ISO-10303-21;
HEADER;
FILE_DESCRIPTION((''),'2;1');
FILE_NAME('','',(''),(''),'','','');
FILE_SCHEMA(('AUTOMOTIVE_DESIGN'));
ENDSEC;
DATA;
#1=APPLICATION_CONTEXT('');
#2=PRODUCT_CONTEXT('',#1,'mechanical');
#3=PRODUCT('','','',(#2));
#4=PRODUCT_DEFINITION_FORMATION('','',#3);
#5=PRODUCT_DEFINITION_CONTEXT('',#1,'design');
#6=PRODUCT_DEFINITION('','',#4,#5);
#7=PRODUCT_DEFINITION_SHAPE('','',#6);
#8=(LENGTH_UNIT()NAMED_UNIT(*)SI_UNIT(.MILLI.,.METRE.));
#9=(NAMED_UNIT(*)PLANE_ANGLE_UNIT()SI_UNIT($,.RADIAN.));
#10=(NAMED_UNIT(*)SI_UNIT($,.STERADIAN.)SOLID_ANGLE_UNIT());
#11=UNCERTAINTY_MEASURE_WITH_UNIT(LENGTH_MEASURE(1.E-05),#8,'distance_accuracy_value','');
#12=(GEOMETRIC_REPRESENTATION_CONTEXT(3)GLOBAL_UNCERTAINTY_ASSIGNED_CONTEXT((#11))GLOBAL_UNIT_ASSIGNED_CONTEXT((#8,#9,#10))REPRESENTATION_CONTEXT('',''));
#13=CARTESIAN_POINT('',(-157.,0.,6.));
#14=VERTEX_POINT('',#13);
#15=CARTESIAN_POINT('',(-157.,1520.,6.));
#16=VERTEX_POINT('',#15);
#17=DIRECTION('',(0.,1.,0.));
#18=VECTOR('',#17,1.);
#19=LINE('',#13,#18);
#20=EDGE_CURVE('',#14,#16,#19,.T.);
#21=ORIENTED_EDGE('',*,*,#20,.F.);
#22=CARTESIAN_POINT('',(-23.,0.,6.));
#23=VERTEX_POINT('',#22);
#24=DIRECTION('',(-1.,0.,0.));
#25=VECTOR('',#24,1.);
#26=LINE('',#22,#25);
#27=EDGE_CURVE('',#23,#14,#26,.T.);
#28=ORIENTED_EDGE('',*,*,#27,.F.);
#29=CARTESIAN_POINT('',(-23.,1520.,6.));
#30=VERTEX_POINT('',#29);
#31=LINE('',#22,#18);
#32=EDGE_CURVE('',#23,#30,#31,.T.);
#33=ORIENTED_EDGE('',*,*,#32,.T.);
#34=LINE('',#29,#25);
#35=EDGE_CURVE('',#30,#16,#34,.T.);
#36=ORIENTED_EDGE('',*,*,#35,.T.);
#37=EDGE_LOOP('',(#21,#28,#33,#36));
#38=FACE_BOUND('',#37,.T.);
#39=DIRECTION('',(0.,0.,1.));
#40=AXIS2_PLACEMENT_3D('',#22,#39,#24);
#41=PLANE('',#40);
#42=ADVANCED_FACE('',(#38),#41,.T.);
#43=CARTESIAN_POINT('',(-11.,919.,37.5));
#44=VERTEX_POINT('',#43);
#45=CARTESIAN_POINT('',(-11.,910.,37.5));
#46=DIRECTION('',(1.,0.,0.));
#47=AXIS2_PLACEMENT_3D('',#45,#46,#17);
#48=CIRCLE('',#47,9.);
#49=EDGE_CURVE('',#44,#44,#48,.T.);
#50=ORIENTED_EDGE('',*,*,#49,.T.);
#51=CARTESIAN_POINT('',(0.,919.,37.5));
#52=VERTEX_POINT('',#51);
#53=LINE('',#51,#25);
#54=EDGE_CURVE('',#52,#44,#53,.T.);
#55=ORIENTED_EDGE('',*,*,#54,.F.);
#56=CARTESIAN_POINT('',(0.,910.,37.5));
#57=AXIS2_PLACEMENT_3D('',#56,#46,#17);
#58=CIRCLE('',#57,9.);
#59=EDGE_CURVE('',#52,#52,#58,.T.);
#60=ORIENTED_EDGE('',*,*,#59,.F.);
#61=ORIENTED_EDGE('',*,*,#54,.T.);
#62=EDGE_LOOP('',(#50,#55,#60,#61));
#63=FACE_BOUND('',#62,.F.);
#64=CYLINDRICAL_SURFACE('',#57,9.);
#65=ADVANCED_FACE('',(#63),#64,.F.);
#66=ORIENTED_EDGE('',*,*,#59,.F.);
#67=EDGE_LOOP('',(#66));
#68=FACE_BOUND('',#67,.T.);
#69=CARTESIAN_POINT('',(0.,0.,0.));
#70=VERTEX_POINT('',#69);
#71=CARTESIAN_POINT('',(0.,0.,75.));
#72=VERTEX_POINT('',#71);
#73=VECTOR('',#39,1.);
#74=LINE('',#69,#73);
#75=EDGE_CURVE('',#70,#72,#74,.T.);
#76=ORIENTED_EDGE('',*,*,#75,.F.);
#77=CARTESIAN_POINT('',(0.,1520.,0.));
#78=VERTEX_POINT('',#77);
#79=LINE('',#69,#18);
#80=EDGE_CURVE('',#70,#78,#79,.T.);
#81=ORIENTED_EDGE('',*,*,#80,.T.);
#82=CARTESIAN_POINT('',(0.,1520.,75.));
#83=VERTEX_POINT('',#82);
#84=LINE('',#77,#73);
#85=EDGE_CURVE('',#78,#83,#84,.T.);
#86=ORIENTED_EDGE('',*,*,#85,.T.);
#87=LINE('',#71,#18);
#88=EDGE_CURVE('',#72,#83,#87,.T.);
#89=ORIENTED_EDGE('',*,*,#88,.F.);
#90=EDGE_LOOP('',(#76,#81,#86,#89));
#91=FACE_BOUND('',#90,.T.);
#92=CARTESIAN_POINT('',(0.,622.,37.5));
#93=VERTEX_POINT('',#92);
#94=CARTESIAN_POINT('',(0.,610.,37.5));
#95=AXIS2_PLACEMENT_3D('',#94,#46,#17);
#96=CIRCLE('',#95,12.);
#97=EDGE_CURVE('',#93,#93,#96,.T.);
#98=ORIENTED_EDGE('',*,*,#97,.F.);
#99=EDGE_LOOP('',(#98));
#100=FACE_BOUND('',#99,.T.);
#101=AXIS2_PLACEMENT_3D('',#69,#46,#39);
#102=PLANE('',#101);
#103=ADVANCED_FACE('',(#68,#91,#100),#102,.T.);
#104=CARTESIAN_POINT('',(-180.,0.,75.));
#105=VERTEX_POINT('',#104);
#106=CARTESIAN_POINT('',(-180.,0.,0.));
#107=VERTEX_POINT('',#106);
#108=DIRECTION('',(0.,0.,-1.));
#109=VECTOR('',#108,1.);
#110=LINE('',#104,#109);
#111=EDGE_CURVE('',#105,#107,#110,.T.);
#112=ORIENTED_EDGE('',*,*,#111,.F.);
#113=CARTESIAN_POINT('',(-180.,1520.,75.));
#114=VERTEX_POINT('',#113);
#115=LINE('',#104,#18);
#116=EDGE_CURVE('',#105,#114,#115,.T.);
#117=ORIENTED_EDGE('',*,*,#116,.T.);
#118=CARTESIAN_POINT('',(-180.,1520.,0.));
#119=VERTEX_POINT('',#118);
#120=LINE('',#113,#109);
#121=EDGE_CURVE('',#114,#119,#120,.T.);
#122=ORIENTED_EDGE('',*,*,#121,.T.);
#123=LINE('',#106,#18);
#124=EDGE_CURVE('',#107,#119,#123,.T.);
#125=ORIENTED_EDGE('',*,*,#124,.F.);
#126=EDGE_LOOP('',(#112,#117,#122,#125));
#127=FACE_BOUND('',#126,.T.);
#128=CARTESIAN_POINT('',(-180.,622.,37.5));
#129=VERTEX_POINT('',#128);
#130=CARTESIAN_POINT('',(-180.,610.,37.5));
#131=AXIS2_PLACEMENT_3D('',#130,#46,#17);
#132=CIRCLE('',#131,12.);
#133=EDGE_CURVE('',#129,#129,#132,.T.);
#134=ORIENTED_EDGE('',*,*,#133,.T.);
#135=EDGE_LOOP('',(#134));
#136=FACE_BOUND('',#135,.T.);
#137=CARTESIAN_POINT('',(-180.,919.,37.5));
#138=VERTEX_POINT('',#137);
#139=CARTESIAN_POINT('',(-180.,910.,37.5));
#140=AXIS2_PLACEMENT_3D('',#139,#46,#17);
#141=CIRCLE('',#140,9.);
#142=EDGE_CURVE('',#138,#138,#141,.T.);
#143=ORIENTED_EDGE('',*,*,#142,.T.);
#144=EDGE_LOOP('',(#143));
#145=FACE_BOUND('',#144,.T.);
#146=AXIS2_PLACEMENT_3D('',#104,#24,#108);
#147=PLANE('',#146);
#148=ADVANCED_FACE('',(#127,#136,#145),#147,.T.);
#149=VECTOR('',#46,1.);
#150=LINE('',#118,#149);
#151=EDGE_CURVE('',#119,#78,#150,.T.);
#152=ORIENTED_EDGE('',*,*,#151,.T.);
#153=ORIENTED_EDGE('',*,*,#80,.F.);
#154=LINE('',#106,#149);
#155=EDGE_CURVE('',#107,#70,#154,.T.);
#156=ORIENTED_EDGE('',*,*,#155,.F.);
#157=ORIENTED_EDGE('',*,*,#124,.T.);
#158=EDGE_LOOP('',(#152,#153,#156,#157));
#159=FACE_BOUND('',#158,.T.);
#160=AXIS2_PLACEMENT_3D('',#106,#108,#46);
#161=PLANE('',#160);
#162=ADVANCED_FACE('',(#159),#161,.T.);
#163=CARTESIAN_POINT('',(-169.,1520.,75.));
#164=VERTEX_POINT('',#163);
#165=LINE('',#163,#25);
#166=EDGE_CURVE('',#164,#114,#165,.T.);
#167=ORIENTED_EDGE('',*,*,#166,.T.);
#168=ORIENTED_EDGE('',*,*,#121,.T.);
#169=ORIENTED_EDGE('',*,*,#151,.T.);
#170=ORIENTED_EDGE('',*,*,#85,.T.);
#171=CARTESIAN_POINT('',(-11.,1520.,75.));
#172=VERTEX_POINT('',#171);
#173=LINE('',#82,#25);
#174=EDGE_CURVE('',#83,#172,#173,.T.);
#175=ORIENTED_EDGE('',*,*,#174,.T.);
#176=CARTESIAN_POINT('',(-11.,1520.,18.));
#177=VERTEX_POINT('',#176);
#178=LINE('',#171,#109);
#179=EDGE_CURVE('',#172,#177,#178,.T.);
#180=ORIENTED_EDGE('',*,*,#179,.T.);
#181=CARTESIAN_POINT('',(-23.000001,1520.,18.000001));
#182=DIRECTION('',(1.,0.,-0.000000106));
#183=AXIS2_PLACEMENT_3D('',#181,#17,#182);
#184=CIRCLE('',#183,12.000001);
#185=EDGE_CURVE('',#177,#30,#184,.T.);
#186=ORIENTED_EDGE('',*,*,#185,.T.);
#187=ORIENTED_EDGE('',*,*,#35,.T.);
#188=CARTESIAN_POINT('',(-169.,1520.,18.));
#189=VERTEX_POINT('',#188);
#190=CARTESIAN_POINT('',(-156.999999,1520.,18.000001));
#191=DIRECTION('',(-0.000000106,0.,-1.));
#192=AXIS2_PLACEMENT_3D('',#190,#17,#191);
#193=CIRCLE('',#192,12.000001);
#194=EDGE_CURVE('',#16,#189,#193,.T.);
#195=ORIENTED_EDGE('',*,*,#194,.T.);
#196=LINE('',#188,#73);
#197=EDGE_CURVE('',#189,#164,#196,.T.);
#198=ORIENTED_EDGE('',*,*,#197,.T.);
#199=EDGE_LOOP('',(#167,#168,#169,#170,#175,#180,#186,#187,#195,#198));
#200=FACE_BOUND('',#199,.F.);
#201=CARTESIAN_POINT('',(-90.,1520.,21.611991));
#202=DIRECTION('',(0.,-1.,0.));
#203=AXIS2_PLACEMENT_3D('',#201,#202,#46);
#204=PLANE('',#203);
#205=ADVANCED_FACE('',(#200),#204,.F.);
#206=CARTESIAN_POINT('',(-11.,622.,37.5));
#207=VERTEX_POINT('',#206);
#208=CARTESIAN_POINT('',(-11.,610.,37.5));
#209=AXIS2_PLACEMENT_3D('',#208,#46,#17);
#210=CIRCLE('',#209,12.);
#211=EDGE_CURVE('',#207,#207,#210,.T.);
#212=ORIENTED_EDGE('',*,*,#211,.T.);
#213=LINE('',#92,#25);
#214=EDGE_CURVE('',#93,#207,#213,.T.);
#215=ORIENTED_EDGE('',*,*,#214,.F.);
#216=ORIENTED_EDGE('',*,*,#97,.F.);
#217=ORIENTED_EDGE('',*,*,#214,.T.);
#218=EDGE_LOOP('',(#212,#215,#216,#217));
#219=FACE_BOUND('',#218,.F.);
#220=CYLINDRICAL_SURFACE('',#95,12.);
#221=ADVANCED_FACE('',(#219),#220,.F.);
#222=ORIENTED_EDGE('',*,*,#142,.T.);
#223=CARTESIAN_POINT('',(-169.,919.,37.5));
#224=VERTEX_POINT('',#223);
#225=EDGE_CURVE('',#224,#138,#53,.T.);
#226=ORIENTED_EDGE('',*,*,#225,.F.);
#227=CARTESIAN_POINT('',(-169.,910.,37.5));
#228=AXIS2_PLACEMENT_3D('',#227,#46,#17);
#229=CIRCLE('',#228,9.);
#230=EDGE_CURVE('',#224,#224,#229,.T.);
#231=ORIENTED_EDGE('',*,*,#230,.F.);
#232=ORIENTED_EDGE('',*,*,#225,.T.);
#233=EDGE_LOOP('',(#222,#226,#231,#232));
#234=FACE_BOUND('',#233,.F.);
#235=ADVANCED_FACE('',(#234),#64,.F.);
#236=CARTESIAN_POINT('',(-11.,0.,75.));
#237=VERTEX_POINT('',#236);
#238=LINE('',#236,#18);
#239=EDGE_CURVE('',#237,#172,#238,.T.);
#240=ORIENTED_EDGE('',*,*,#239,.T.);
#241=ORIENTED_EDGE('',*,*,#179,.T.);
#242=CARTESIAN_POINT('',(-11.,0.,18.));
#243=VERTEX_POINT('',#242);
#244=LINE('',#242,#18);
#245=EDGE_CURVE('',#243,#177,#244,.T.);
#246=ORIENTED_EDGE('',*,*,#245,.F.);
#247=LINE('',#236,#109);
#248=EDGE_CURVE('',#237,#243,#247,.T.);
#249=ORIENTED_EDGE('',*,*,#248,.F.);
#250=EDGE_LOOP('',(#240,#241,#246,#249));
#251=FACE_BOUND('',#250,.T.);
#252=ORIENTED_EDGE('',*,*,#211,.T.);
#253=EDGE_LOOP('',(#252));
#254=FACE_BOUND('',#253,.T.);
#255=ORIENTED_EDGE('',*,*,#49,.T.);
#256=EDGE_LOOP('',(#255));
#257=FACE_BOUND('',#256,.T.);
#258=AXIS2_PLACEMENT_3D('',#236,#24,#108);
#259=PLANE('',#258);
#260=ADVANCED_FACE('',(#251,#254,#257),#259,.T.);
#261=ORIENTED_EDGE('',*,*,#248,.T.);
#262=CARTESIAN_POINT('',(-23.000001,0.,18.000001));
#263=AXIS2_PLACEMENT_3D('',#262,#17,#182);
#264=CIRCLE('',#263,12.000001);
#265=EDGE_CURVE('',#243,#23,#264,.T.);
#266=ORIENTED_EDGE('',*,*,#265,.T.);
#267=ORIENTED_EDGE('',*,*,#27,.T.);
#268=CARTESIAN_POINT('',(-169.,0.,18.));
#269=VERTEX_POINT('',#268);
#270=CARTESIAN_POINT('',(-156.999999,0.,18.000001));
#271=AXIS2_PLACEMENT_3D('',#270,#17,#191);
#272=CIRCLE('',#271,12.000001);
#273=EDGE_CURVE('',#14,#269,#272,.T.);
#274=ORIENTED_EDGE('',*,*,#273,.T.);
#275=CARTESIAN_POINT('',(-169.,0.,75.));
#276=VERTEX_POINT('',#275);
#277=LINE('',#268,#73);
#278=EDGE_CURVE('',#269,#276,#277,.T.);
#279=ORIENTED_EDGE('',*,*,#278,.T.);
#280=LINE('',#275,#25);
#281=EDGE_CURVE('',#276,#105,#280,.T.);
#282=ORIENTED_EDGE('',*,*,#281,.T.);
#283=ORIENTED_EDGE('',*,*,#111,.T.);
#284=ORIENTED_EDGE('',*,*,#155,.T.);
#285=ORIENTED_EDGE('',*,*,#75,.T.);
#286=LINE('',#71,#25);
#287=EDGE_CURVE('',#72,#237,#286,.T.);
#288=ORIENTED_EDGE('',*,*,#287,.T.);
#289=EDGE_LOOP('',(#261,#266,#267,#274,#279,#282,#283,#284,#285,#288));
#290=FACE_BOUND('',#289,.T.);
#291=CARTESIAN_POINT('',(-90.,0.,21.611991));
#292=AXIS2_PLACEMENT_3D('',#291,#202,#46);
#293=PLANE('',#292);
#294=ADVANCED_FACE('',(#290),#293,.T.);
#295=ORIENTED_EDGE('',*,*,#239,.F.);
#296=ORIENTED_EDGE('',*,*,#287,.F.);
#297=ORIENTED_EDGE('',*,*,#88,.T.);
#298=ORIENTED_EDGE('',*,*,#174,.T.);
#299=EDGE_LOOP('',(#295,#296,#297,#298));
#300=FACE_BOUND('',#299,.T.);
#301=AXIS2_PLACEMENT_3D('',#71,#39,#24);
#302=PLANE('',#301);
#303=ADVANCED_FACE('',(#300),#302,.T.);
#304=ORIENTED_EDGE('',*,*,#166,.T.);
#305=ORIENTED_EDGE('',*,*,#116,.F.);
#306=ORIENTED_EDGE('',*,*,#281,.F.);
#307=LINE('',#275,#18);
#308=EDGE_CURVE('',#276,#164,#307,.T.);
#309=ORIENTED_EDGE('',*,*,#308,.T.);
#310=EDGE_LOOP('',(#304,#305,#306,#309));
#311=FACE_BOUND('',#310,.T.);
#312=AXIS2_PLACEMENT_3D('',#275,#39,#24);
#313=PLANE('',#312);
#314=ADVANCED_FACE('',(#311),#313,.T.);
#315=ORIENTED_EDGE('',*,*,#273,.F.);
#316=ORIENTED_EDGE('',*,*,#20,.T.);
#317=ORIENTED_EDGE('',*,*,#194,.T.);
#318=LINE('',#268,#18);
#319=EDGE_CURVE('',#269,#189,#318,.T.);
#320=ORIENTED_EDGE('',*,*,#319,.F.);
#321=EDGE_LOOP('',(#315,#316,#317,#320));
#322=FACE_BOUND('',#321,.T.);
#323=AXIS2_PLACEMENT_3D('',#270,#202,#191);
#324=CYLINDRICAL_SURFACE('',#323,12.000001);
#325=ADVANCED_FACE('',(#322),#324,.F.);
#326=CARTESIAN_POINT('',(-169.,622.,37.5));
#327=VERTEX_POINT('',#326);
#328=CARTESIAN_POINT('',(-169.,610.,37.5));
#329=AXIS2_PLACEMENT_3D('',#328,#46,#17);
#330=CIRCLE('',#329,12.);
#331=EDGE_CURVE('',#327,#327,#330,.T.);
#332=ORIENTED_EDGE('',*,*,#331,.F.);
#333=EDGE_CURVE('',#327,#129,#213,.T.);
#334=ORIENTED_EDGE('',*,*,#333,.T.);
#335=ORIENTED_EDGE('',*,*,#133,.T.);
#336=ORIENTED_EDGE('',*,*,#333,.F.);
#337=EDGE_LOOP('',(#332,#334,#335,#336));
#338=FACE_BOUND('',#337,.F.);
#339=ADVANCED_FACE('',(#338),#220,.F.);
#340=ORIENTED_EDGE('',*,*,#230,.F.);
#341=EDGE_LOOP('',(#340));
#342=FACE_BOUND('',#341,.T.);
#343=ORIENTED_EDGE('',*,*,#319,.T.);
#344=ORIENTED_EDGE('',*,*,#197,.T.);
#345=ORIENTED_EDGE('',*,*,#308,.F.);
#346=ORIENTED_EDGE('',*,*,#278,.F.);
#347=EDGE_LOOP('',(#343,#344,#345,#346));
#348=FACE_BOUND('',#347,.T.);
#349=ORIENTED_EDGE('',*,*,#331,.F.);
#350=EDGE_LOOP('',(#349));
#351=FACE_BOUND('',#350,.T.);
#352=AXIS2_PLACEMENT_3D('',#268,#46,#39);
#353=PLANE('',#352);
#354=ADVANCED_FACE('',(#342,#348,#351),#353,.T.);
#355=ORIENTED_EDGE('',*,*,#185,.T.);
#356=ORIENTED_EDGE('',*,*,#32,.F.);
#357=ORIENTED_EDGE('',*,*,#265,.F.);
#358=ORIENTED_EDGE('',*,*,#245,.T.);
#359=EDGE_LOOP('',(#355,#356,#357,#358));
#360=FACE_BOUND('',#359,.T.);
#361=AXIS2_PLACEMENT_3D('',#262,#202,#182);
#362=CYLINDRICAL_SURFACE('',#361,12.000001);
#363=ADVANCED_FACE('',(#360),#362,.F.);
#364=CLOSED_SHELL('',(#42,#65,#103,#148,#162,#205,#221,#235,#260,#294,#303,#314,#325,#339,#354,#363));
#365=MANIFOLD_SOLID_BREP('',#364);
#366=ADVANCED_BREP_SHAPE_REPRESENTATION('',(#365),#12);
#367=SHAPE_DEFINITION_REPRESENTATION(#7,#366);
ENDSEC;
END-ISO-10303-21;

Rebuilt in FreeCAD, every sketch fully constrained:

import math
import FreeCAD as App
import Part
import Sketcher

V = App.Vector
Q = App.Units.Quantity

doc = App.newDocument("Part")
body = doc.addObject("PartDesign::Body", "Body")

# Sketch on XZ plane
sketch1 = body.newObject("Sketcher::SketchObject", "Sketch")
sketch1.AttachmentSupport = (doc.getObject("XZ_Plane"), [""])
sketch1.MapMode = "FlatFace"
sketch1.addGeometry(Part.LineSegment(V(-180, 0, 0), V(0, 0, 0)), False)
sketch1.addGeometry(Part.LineSegment(V(0, 0, 0), V(0, 75, 0)), False)
sketch1.addGeometry(Part.LineSegment(V(0, 75, 0), V(-11, 75, 0)), False)
sketch1.addGeometry(Part.LineSegment(V(-11, 75, 0), V(-11, 18, 0)), False)
sketch1.addGeometry(Part.ArcOfCircle(Part.Circle(V(-23.000001, 18.000001, 0), V(0, 0, 1), 12.000001), math.radians(-89.999994), math.radians(-0.000006)), False)
sketch1.addGeometry(Part.LineSegment(V(-23, 6, 0), V(-157, 6, 0)), False)
sketch1.addGeometry(Part.ArcOfCircle(Part.Circle(V(-156.999999, 18.000001, 0), V(0, 0, 1), 12.000001), math.radians(-179.999994), math.radians(-90.000006)), False)
sketch1.addGeometry(Part.LineSegment(V(-169, 18, 0), V(-169, 75, 0)), False)
sketch1.addGeometry(Part.LineSegment(V(-169, 75, 0), V(-180, 75, 0)), False)
sketch1.addGeometry(Part.LineSegment(V(-180, 75, 0), V(-180, 0, 0)), False)
sketch1.addConstraint(Sketcher.Constraint("Coincident", 0, 2, 1, 1))
sketch1.addConstraint(Sketcher.Constraint("Coincident", 1, 2, 2, 1))
sketch1.addConstraint(Sketcher.Constraint("Coincident", 2, 2, 3, 1))
sketch1.addConstraint(Sketcher.Constraint("Tangent", 3, 2, 4, 2))
sketch1.addConstraint(Sketcher.Constraint("Tangent", 4, 1, 5, 1))
sketch1.addConstraint(Sketcher.Constraint("Tangent", 5, 2, 6, 2))
sketch1.addConstraint(Sketcher.Constraint("Tangent", 6, 1, 7, 1))
sketch1.addConstraint(Sketcher.Constraint("Coincident", 7, 2, 8, 1))
sketch1.addConstraint(Sketcher.Constraint("Coincident", 8, 2, 9, 1))
sketch1.addConstraint(Sketcher.Constraint("Coincident", 9, 2, 0, 1))
sketch1.addConstraint(Sketcher.Constraint("Horizontal", 0))
sketch1.addConstraint(Sketcher.Constraint("Vertical", 1))
sketch1.addConstraint(Sketcher.Constraint("Horizontal", 2))
sketch1.addConstraint(Sketcher.Constraint("Vertical", 3))
sketch1.addConstraint(Sketcher.Constraint("Horizontal", 5))
sketch1.addConstraint(Sketcher.Constraint("Vertical", 7))
sketch1.addConstraint(Sketcher.Constraint("Horizontal", 8))
sketch1.addConstraint(Sketcher.Constraint("Vertical", 9))
sketch1.addConstraint(Sketcher.Constraint("Coincident", 0, 2, -1, 1))
sketch1.addConstraint(Sketcher.Constraint("Equal", 4, 6))
sketch1.addConstraint(Sketcher.Constraint("Horizontal", 2, 2, 7, 2))
sketch1.addConstraint(Sketcher.Constraint("Equal", 2, 8))
sketch1.addConstraint(Sketcher.Constraint("Radius", 4, Q("12.000001 mm")))
sketch1.addConstraint(Sketcher.Constraint("DistanceX", 0, 1, 0, 2, Q("180 mm")))
sketch1.addConstraint(Sketcher.Constraint("DistanceX", 2, 2, 2, 1, Q("11 mm")))
sketch1.addConstraint(Sketcher.Constraint("DistanceY", 1, 1, 1, 2, Q("75 mm")))
sketch1.addConstraint(Sketcher.Constraint("DistanceY", 3, 2, 3, 1, Q("57 mm")))
pad1 = body.newObject("PartDesign::Pad", "Pad")
pad1.Profile = sketch1
pad1.Length = 1520
pad1.Reversed = True

# Sketch on YZ plane
sketch2 = body.newObject("Sketcher::SketchObject", "Sketch001")
sketch2.AttachmentSupport = (doc.getObject("YZ_Plane"), [""])
sketch2.MapMode = "FlatFace"
sketch2.addGeometry(Part.Circle(V(910, 37.5, 0), V(0, 0, 1), 9), False)
sketch2.addGeometry(Part.Circle(V(610, 37.5, 0), V(0, 0, 1), 12), False)
sketch2.addConstraint(Sketcher.Constraint("Horizontal", 0, 3, 1, 3))
sketch2.addConstraint(Sketcher.Constraint("Diameter", 0, Q("18 mm")))
sketch2.addConstraint(Sketcher.Constraint("Diameter", 1, Q("24 mm")))
sketch2.addConstraint(Sketcher.Constraint("DistanceX", -1, 1, 0, 3, Q("910 mm")))
sketch2.addConstraint(Sketcher.Constraint("DistanceX", -1, 1, 1, 3, Q("610 mm")))
sketch2.addConstraint(Sketcher.Constraint("DistanceY", -1, 1, 0, 3, Q("37.5 mm")))
pocket1 = body.newObject("PartDesign::Pocket", "Pocket")
pocket1.Profile = sketch2
pocket1.Length = 180

doc.recompute()
